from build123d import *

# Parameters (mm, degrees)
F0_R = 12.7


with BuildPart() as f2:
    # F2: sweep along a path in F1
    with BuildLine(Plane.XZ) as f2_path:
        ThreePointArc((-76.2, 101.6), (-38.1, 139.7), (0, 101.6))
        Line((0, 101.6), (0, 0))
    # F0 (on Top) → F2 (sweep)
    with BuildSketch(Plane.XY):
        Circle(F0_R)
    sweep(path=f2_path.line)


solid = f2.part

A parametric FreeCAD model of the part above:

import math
import FreeCAD as App
import Part
import Sketcher
from FreeCAD import Vector
Q = App.Units.Quantity

doc = App.newDocument("Part")
body = doc.addObject("PartDesign::Body", "Body")

sketch1 = doc.addObject("Sketcher::SketchObject", "Sketch")
body.addObject(sketch1)
sketch1.AttachmentSupport = (doc.XY_Plane, [""])
sketch1.MapMode = "FlatFace"
sketch1.addGeometry(Part.Circle(Vector(0, 0, 0), Vector(0, 0, 1), 13), False)
sketch1.addConstraint([
    Sketcher.Constraint("Coincident", 0, 3, -1, 1),
    Sketcher.Constraint("Diameter", 0, Q("1 in")),
])

sketch2 = doc.addObject("Sketcher::SketchObject", "Sketch001")
body.addObject(sketch2)
sketch2.AttachmentSupport = (doc.XZ_Plane, [""])
sketch2.MapMode = "FlatFace"
sketch2.addGeometry([
    Part.ArcOfCircle(Part.Circle(Vector(-38, 102, 0), Vector(0, 0, 1), 38), math.radians(0), math.radians(180)),
    Part.LineSegment(Vector(0, 102, 0), Vector(0, 0, 0)),
], False)
sketch2.addConstraint([
    Sketcher.Constraint("Tangent", 0, 1, 1, 1),
    Sketcher.Constraint("Vertical", 1),
    Sketcher.Constraint("Coincident", 1, 2, -1, 1),
    Sketcher.Constraint("Radius", 0, Q("1.5 in")),
    Sketcher.Constraint("DistanceY", 1, 2, 1, 1, Q("4 in")),
    Sketcher.Constraint("DistanceY", -1, 1, 0, 2, Q("4 in")),
])
doc.recompute()

additivepipe = doc.addObject("PartDesign::AdditivePipe", "AdditivePipe")
body.addObject(additivepipe)
additivepipe.Profile = sketch1
additivepipe.Spine = (sketch2, ["Edge1", "Edge2"])

doc.recompute()
